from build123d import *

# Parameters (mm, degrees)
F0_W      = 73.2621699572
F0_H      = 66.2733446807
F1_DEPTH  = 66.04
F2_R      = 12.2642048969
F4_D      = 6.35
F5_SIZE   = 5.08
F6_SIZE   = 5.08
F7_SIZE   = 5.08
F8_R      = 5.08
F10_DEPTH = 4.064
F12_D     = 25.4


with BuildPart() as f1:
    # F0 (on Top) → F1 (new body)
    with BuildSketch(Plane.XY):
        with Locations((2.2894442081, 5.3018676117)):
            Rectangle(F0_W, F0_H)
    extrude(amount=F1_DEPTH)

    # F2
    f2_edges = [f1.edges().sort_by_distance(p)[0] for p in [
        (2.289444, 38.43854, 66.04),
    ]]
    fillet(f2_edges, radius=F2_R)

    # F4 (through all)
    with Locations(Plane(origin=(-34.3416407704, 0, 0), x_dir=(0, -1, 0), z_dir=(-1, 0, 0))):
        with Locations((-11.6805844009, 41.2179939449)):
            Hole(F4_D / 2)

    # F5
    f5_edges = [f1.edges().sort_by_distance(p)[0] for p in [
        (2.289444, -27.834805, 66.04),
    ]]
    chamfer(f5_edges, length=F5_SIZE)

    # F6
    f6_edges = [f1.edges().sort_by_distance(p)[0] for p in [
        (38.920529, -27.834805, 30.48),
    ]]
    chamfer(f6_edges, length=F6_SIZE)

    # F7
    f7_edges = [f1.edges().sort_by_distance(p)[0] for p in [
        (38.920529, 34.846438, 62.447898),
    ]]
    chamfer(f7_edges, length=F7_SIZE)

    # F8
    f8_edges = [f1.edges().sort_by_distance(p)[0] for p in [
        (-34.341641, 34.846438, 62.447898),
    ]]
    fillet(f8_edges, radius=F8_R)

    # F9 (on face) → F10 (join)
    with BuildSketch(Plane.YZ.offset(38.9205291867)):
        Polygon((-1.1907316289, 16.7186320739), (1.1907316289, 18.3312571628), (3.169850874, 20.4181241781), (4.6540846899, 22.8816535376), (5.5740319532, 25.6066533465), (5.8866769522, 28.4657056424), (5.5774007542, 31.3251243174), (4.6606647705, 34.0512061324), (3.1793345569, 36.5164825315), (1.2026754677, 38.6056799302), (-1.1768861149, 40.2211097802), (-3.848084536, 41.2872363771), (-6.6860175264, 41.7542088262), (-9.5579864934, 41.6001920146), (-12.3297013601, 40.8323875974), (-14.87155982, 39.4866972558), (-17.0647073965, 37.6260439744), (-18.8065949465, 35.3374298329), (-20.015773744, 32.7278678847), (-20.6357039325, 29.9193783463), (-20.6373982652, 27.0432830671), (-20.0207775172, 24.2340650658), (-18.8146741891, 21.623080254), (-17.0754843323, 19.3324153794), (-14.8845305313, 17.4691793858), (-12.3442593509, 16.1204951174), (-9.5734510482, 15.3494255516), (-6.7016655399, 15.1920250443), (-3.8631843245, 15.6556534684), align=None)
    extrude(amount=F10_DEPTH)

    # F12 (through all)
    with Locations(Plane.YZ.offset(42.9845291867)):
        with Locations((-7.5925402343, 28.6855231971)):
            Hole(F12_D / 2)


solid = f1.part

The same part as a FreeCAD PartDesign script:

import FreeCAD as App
import Part
import Sketcher
from FreeCAD import Vector
Q = App.Units.Quantity


def edges_at(feature, points):
    """Names of the edges that pass closest to the given points."""
    edges = feature.Shape.Edges
    near = lambda p: min(range(len(edges)), key=lambda i: edges[i].distToShape(Part.Vertex(*p))[0])
    return sorted({f"Edge{near(p) + 1}" for p in points})

doc = App.newDocument("Part")
body = doc.addObject("PartDesign::Body", "Body")

# Sketch on XY plane
sketch1 = body.newObject("Sketcher::SketchObject", "Sketch")
sketch1.AttachmentSupport = (doc.getObject("XY_Plane"), [""])
sketch1.MapMode = "FlatFace"
sketch1.addGeometry(Part.LineSegment(Vector(-34.341641, 38.43854, 0), Vector(-34.341641, -27.834805, 0)), False)
sketch1.addGeometry(Part.LineSegment(Vector(-34.341641, -27.834805, 0), Vector(38.920529, -27.834805, 0)), False)
sketch1.addGeometry(Part.LineSegment(Vector(38.920529, -27.834805, 0), Vector(38.920529, 38.43854, 0)), False)
sketch1.addGeometry(Part.LineSegment(Vector(38.920529, 38.43854, 0), Vector(-34.341641, 38.43854, 0)), False)
sketch1.addConstraint(Sketcher.Constraint("Coincident", 0, 2, 1, 1))
sketch1.addConstraint(Sketcher.Constraint("Coincident", 1, 2, 2, 1))
sketch1.addConstraint(Sketcher.Constraint("Coincident", 2, 2, 3, 1))
sketch1.addConstraint(Sketcher.Constraint("Coincident", 3, 2, 0, 1))
sketch1.addConstraint(Sketcher.Constraint("Vertical", 0))
sketch1.addConstraint(Sketcher.Constraint("Horizontal", 1))
sketch1.addConstraint(Sketcher.Constraint("Vertical", 2))
sketch1.addConstraint(Sketcher.Constraint("Horizontal", 3))
sketch1.addConstraint(Sketcher.Constraint("DistanceX", 1, 1, 1, 2, Q("73.26217 mm")))
sketch1.addConstraint(Sketcher.Constraint("DistanceY", 0, 2, 0, 1, Q("66.273345 mm")))
sketch1.addConstraint(Sketcher.Constraint("DistanceX", 0, 2, -1, 1, Q("34.341641 mm")))
sketch1.addConstraint(Sketcher.Constraint("DistanceY", -1, 1, 2, 2, Q("38.43854 mm")))
pad1 = body.newObject("PartDesign::Pad", "Pad")
pad1.Profile = sketch1
pad1.Length = Q("2.6 in")
doc.recompute()

fillet = body.newObject("PartDesign::Fillet", "Fillet")
fillet.Base = (pad1, edges_at(pad1, [(2.289, 38.439, 66.04)]))
fillet.Radius = 12.264205

# Sketch on YZ plane
sketch2 = body.newObject("Sketcher::SketchObject", "Sketch001")
sketch2.AttachmentSupport = (doc.getObject("YZ_Plane"), [""])
sketch2.MapMode = "FlatFace"
sketch2.AttachmentOffset = App.Placement(Vector(0, 0, -34.341641), App.Rotation())
sketch2.addGeometry(Part.Circle(Vector(11.680584, 41.217994, 0), Vector(0, 0, 1), 3.175), False)
sketch2.addConstraint(Sketcher.Constraint("Diameter", 0, Q("0.25 in")))
sketch2.addConstraint(Sketcher.Constraint("DistanceX", -1, 1, 0, 3, Q("11.680584 mm")))
sketch2.addConstraint(Sketcher.Constraint("DistanceY", -1, 1, 0, 3, Q("41.217994 mm")))
doc.recompute()
hole = body.newObject("PartDesign::Hole", "Hole")
hole.Profile = sketch2
hole.ThreadType = "None"
hole.Diameter = Q("0.25 in")
hole.DepthType = "ThroughAll"
hole.Reversed = True
doc.recompute()

chamfer = body.newObject("PartDesign::Chamfer", "Chamfer")
chamfer.Base = (hole, edges_at(hole, [(2.289, -27.835, 66.04)]))
chamfer.Size = Q("0.2 in")
doc.recompute()

chamfer2 = body.newObject("PartDesign::Chamfer", "Chamfer001")
chamfer2.Base = (chamfer, edges_at(chamfer, [(38.921, -27.835, 30.48)]))
chamfer2.Size = Q("0.2 in")
doc.recompute()

chamfer3 = body.newObject("PartDesign::Chamfer", "Chamfer002")
chamfer3.Base = (chamfer2, edges_at(chamfer2, [(38.921, 34.846, 62.448)]))
chamfer3.Size = Q("0.2 in")
doc.recompute()

fillet2 = body.newObject("PartDesign::Fillet", "Fillet001")
fillet2.Base = (chamfer3, edges_at(chamfer3, [(-34.342, 34.846, 62.448)]))
fillet2.Radius = Q("0.2 in")

# Sketch on YZ plane
sketch3 = body.newObject("Sketcher::SketchObject", "Sketch002")
sketch3.AttachmentSupport = (doc.getObject("YZ_Plane"), [""])
sketch3.MapMode = "FlatFace"
sketch3.AttachmentOffset = App.Placement(Vector(0, 0, 38.920529), App.Rotation())
sketch3.addGeometry(Part.LineSegment(Vector(-1.190732, 16.718632, 0), Vector(1.190732, 18.331257, 0)), False)
sketch3.addGeometry(Part.LineSegment(Vector(1.190732, 18.331257, 0), Vector(3.169851, 20.418124, 0)), False)
sketch3.addGeometry(Part.LineSegment(Vector(3.169851, 20.418124, 0), Vector(4.654085, 22.881654, 0)), False)
sketch3.addGeometry(Part.LineSegment(Vector(4.654085, 22.881654, 0), Vector(5.574032, 25.606653, 0)), False)
sketch3.addGeometry(Part.LineSegment(Vector(5.574032, 25.606653, 0), Vector(5.886677, 28.465706, 0)), False)
sketch3.addGeometry(Part.LineSegment(Vector(5.886677, 28.465706, 0), Vector(5.577401, 31.325124, 0)), False)
sketch3.addGeometry(Part.LineSegment(Vector(5.577401, 31.325124, 0), Vector(4.660665, 34.051206, 0)), False)
sketch3.addGeometry(Part.LineSegment(Vector(4.660665, 34.051206, 0), Vector(3.179335, 36.516483, 0)), False)
sketch3.addGeometry(Part.LineSegment(Vector(3.179335, 36.516483, 0), Vector(1.202675, 38.60568, 0)), False)
sketch3.addGeometry(Part.LineSegment(Vector(1.202675, 38.60568, 0), Vector(-1.176886, 40.22111, 0)), False)
sketch3.addGeometry(Part.LineSegment(Vector(-1.176886, 40.22111, 0), Vector(-3.848085, 41.287236, 0)), False)
sketch3.addGeometry(Part.LineSegment(Vector(-3.848085, 41.287236, 0), Vector(-6.686018, 41.754209, 0)), False)
sketch3.addGeometry(Part.LineSegment(Vector(-6.686018, 41.754209, 0), Vector(-9.557986, 41.600192, 0)), False)
sketch3.addGeometry(Part.LineSegment(Vector(-9.557986, 41.600192, 0), Vector(-12.329701, 40.832388, 0)), False)
sketch3.addGeometry(Part.LineSegment(Vector(-12.329701, 40.832388, 0), Vector(-14.87156, 39.486697, 0)), False)
sketch3.addGeometry(Part.LineSegment(Vector(-14.87156, 39.486697, 0), Vector(-17.064707, 37.626044, 0)), False)
sketch3.addGeometry(Part.LineSegment(Vector(-17.064707, 37.626044, 0), Vector(-18.806595, 35.33743, 0)), False)
sketch3.addGeometry(Part.LineSegment(Vector(-18.806595, 35.33743, 0), Vector(-20.015774, 32.727868, 0)), False)
sketch3.addGeometry(Part.LineSegment(Vector(-20.015774, 32.727868, 0), Vector(-20.635704, 29.919378, 0)), False)
sketch3.addGeometry(Part.LineSegment(Vector(-20.635704, 29.919378, 0), Vector(-20.637398, 27.043283, 0)), False)
sketch3.addGeometry(Part.LineSegment(Vector(-20.637398, 27.043283, 0), Vector(-20.020778, 24.234065, 0)), False)
sketch3.addGeometry(Part.LineSegment(Vector(-20.020778, 24.234065, 0), Vector(-18.814674, 21.62308, 0)), False)
sketch3.addGeometry(Part.LineSegment(Vector(-18.814674, 21.62308, 0), Vector(-17.075484, 19.332415, 0)), False)
sketch3.addGeometry(Part.LineSegment(Vector(-17.075484, 19.332415, 0), Vector(-14.884531, 17.469179, 0)), False)
sketch3.addGeometry(Part.LineSegment(Vector(-14.884531, 17.469179, 0), Vector(-12.344259, 16.120495, 0)), False)
sketch3.addGeometry(Part.LineSegment(Vector(-12.344259, 16.120495, 0), Vector(-9.573451, 15.349426, 0)), False)
sketch3.addGeometry(Part.LineSegment(Vector(-9.573451, 15.349426, 0), Vector(-6.701666, 15.192025, 0)), False)
sketch3.addGeometry(Part.LineSegment(Vector(-6.701666, 15.192025, 0), Vector(-3.863184, 15.655653, 0)), False)
sketch3.addGeometry(Part.LineSegment(Vector(-3.863184, 15.655653, 0), Vector(-1.190732, 16.718632, 0)), False)
sketch3.addConstraint(Sketcher.Constraint("Coincident", 0, 2, 1, 1))
sketch3.addConstraint(Sketcher.Constraint("Coincident", 1, 2, 2, 1))
sketch3.addConstraint(Sketcher.Constraint("Coincident", 2, 2, 3, 1))
sketch3.addConstraint(Sketcher.Constraint("Coincident", 3, 2, 4, 1))
sketch3.addConstraint(Sketcher.Constraint("Coincident", 4, 2, 5, 1))
sketch3.addConstraint(Sketcher.Constraint("Coincident", 5, 2, 6, 1))
sketch3.addConstraint(Sketcher.Constraint("Coincident", 6, 2, 7, 1))
sketch3.addConstraint(Sketcher.Constraint("Coincident", 7, 2, 8, 1))
sketch3.addConstraint(Sketcher.Constraint("Coincident", 8, 2, 9, 1))
sketch3.addConstraint(Sketcher.Constraint("Coincident", 9, 2, 10, 1))
sketch3.addConstraint(Sketcher.Constraint("Coincident", 10, 2, 11, 1))
sketch3.addConstraint(Sketcher.Constraint("Coincident", 11, 2, 12, 1))
sketch3.addConstraint(Sketcher.Constraint("Coincident", 12, 2, 13, 1))
sketch3.addConstraint(Sketcher.Constraint("Coincident", 13, 2, 14, 1))
sketch3.addConstraint(Sketcher.Constraint("Coincident", 14, 2, 15, 1))
sketch3.addConstraint(Sketcher.Constraint("Coincident", 15, 2, 16, 1))
sketch3.addConstraint(Sketcher.Constraint("Coincident", 16, 2, 17, 1))
sketch3.addConstraint(Sketcher.Constraint("Coincident", 17, 2, 18, 1))
sketch3.addConstraint(Sketcher.Constraint("Coincident", 18, 2, 19, 1))
sketch3.addConstraint(Sketcher.Constraint("Coincident", 19, 2, 20, 1))
sketch3.addConstraint(Sketcher.Constraint("Coincident", 20, 2, 21, 1))
sketch3.addConstraint(Sketcher.Constraint("Coincident", 21, 2, 22, 1))
sketch3.addConstraint(Sketcher.Constraint("Coincident", 22, 2, 23, 1))
sketch3.addConstraint(Sketcher.Constraint("Coincident", 23, 2, 24, 1))
sketch3.addConstraint(Sketcher.Constraint("Coincident", 24, 2, 25, 1))
sketch3.addConstraint(Sketcher.Constraint("Coincident", 25, 2, 26, 1))
sketch3.addConstraint(Sketcher.Constraint("Coincident", 26, 2, 27, 1))
sketch3.addConstraint(Sketcher.Constraint("Coincident", 27, 2, 28, 1))
sketch3.addConstraint(Sketcher.Constraint("Coincident", 28, 2, 0, 1))
sketch3.addConstraint(Sketcher.Constraint("Equal", 0, 1))
sketch3.addConstraint(Sketcher.Constraint("Equal", 1, 2))
sketch3.addConstraint(Sketcher.Constraint("Equal", 2, 3))
sketch3.addConstraint(Sketcher.Constraint("Equal", 3, 4))
sketch3.addConstraint(Sketcher.Constraint("Equal", 4, 5))
sketch3.addConstraint(Sketcher.Constraint("Equal", 5, 6))
sketch3.addConstraint(Sketcher.Constraint("Equal", 6, 7))
sketch3.addConstraint(Sketcher.Constraint("Equal", 7, 8))
sketch3.addConstraint(Sketcher.Constraint("Equal", 8, 9))
sketch3.addConstraint(Sketcher.Constraint("Equal", 9, 10))
sketch3.addConstraint(Sketcher.Constraint("Equal", 10, 11))
sketch3.addConstraint(Sketcher.Constraint("Equal", 11, 12))
sketch3.addConstraint(Sketcher.Constraint("Equal", 12, 13))
sketch3.addConstraint(Sketcher.Constraint("Equal", 13, 14))
sketch3.addConstraint(Sketcher.Constraint("Equal", 14, 15))
sketch3.addConstraint(Sketcher.Constraint("Equal", 15, 16))
sketch3.addConstraint(Sketcher.Constraint("Equal", 16, 17))
sketch3.addConstraint(Sketcher.Constraint("Equal", 17, 18))
sketch3.addConstraint(Sketcher.Constraint("Equal", 18, 19))
sketch3.addConstraint(Sketcher.Constraint("Equal", 19, 20))
sketch3.addConstraint(Sketcher.Constraint("Equal", 20, 21))
sketch3.addConstraint(Sketcher.Constraint("Equal", 21, 22))
sketch3.addConstraint(Sketcher.Constraint("Equal", 22, 23))
sketch3.addConstraint(Sketcher.Constraint("Equal", 23, 24))
sketch3.addConstraint(Sketcher.Constraint("Equal", 24, 25))
sketch3.addConstraint(Sketcher.Constraint("Equal", 25, 26))
sketch3.addConstraint(Sketcher.Constraint("Equal", 26, 27))
sketch3.addConstraint(Sketcher.Constraint("Equal", 27, 28))
sketch3.addConstraint(Sketcher.Constraint("DistanceX", -1, 1, 5, 2, Q("5.577401 mm")))
sketch3.addConstraint(Sketcher.Constraint("DistanceX", 13, 2, -1, 1, Q("12.329701 mm")))
sketch3.addConstraint(Sketcher.Constraint("DistanceX", 19, 2, -1, 1, Q("20.637398 mm")))
sketch3.addConstraint(Sketcher.Constraint("DistanceY", 2, 2, 3, 2, Q("2.725 mm")))
sketch3.addConstraint(Sketcher.Constraint("DistanceX", 0, 2, 3, 2, Q("4.3833 mm")))
sketch3.addConstraint(Sketcher.Constraint("DistanceY", 1, 2, 5, 2, Q("10.907 mm")))
sketch3.addConstraint(Sketcher.Constraint("DistanceY", 4, 2, 6, 2, Q("5.5855 mm")))
sketch3.addConstraint(Sketcher.Constraint("DistanceX", 8, 2, 4, 2, Q("4.684001 mm")))
sketch3.addConstraint(Sketcher.Constraint("DistanceX", 10, 2, 9, 2, Q("2.671198 mm")))
sketch3.addConstraint(Sketcher.Constraint("DistanceY", 9, 2, 11, 2, Q("1.533099 mm")))
sketch3.addConstraint(Sketcher.Constraint("DistanceX", 12, 2, 10, 2, Q("5.709902 mm")))
sketch3.addConstraint(Sketcher.Constraint("DistanceY", 21, 2, 18, 2, Q("8.296298 mm")))
sketch3.addConstraint(Sketcher.Constraint("DistanceX", 17, 2, 21, 2, Q("1.2011 mm")))
sketch3.addConstraint(Sketcher.Constraint("DistanceY", 23, 2, 21, 2, Q("4.153901 mm")))
sketch3.addConstraint(Sketcher.Constraint("DistanceY", 26, 2, 25, 2, Q("0.157401 mm")))
sketch3.addConstraint(Sketcher.Constraint("DistanceX", -1, 1, 0, 2, Q("1.190732 mm")))
sketch3.addConstraint(Sketcher.Constraint("DistanceX", -1, 1, 1, 2, Q("3.169851 mm")))
sketch3.addConstraint(Sketcher.Constraint("DistanceY", -1, 1, 8, 2, Q("38.60568 mm")))
sketch3.addConstraint(Sketcher.Constraint("DistanceY", -1, 1, 9, 2, Q("40.22111 mm")))
sketch3.addConstraint(Sketcher.Constraint("DistanceX", 14, 2, -1, 1, Q("14.87156 mm")))
sketch3.addConstraint(Sketcher.Constraint("DistanceY", -1, 1, 16, 2, Q("35.33743 mm")))
sketch3.addConstraint(Sketcher.Constraint("DistanceY", -1, 1, 18, 2, Q("29.919378 mm")))
sketch3.addConstraint(Sketcher.Constraint("DistanceX", 23, 2, -1, 1, Q("14.884531 mm")))
sketch3.addConstraint(Sketcher.Constraint("DistanceX", 24, 2, -1, 1, Q("12.344259 mm")))
sketch3.addConstraint(Sketcher.Constraint("DistanceX", 25, 2, -1, 1, Q("9.573451 mm")))
sketch3.addConstraint(Sketcher.Constraint("DistanceX", 28, 2, -1, 1, Q("1.190732 mm")))
sketch3.addConstraint(Sketcher.Constraint("DistanceY", 1, 2, 2, 2, Q("2.463529 mm")))
sketch3.addConstraint(Sketcher.Constraint("DistanceX", 7, 2, 6, 2, Q("1.48133 mm")))
sketch3.addConstraint(Sketcher.Constraint("DistanceX", 15, 2, 12, 2, Q("7.506721 mm")))
sketch3.addConstraint(Sketcher.Constraint("DistanceX", 17, 2, 16, 2, Q("1.209179 mm")))
pad2 = body.newObject("PartDesign::Pad", "Pad001")
pad2.Profile = sketch3
pad2.Length = Q("0.16 in")

# Sketch on YZ plane
sketch4 = body.newObject("Sketcher::SketchObject", "Sketch003")
sketch4.AttachmentSupport = (doc.getObject("YZ_Plane"), [""])
sketch4.MapMode = "FlatFace"
sketch4.AttachmentOffset = App.Placement(Vector(0, 0, 42.984529), App.Rotation())
sketch4.addGeometry(Part.Circle(Vector(-7.59254, 28.685523, 0), Vector(0, 0, 1), 12.7), False)
sketch4.addConstraint(Sketcher.Constraint("Diameter", 0, Q("1 in")))
sketch4.addConstraint(Sketcher.Constraint("DistanceX", 0, 3, -1, 1, Q("7.59254 mm")))
sketch4.addConstraint(Sketcher.Constraint("DistanceY", -1, 1, 0, 3, Q("28.685523 mm")))
doc.recompute()
hole2 = body.newObject("PartDesign::Hole", "Hole001")
hole2.Profile = sketch4
hole2.ThreadType = "None"
hole2.Diameter = Q("1 in")
hole2.DepthType = "ThroughAll"

doc.recompute()
